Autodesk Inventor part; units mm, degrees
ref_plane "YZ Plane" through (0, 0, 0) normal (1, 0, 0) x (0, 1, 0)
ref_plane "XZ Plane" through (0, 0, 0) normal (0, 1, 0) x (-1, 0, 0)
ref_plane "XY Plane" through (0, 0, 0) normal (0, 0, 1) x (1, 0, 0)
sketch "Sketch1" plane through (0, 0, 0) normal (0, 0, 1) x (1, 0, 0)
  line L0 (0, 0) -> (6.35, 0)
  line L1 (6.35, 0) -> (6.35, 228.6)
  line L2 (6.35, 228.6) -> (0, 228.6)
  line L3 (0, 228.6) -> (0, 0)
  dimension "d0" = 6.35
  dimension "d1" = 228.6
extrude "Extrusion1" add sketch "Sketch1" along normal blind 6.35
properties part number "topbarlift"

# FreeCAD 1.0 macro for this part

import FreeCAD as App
import Part
import Sketcher
from FreeCAD import Vector
Q = App.Units.Quantity

doc = App.newDocument("Part")
body = doc.addObject("PartDesign::Body", "Body")

# Sketch on XY plane
sketch1 = body.newObject("Sketcher::SketchObject", "Sketch")
sketch1.AttachmentSupport = (doc.getObject("XY_Plane"), [""])
sketch1.MapMode = "FlatFace"
sketch1.addGeometry(Part.LineSegment(Vector(0, 229, 0), Vector(0, 0, 0)), False)
sketch1.addGeometry(Part.LineSegment(Vector(0, 0, 0), Vector(6, 0, 0)), False)
sketch1.addGeometry(Part.LineSegment(Vector(6, 0, 0), Vector(6, 229, 0)), False)
sketch1.addGeometry(Part.LineSegment(Vector(6, 229, 0), Vector(0, 229, 0)), False)
sketch1.addConstraint(Sketcher.Constraint("Coincident", 0, 2, 1, 1))
sketch1.addConstraint(Sketcher.Constraint("Coincident", 1, 2, 2, 1))
sketch1.addConstraint(Sketcher.Constraint("Coincident", 2, 2, 3, 1))
sketch1.addConstraint(Sketcher.Constraint("Coincident", 3, 2, 0, 1))
sketch1.addConstraint(Sketcher.Constraint("Vertical", 0))
sketch1.addConstraint(Sketcher.Constraint("Horizontal", 1))
sketch1.addConstraint(Sketcher.Constraint("Vertical", 2))
sketch1.addConstraint(Sketcher.Constraint("Horizontal", 3))
sketch1.addConstraint(Sketcher.Constraint("Coincident", 0, 2, -1, 1))
sketch1.addConstraint(Sketcher.Constraint("DistanceY", 0, 2, 0, 1, Q("9 in")))
sketch1.addConstraint(Sketcher.Constraint("DistanceX", 1, 1, 1, 2, Q("0.25 in")))
pad1 = body.newObject("PartDesign::Pad", "Pad")
pad1.Profile = sketch1
pad1.Length = Q("0.25 in")

doc.recompute()
